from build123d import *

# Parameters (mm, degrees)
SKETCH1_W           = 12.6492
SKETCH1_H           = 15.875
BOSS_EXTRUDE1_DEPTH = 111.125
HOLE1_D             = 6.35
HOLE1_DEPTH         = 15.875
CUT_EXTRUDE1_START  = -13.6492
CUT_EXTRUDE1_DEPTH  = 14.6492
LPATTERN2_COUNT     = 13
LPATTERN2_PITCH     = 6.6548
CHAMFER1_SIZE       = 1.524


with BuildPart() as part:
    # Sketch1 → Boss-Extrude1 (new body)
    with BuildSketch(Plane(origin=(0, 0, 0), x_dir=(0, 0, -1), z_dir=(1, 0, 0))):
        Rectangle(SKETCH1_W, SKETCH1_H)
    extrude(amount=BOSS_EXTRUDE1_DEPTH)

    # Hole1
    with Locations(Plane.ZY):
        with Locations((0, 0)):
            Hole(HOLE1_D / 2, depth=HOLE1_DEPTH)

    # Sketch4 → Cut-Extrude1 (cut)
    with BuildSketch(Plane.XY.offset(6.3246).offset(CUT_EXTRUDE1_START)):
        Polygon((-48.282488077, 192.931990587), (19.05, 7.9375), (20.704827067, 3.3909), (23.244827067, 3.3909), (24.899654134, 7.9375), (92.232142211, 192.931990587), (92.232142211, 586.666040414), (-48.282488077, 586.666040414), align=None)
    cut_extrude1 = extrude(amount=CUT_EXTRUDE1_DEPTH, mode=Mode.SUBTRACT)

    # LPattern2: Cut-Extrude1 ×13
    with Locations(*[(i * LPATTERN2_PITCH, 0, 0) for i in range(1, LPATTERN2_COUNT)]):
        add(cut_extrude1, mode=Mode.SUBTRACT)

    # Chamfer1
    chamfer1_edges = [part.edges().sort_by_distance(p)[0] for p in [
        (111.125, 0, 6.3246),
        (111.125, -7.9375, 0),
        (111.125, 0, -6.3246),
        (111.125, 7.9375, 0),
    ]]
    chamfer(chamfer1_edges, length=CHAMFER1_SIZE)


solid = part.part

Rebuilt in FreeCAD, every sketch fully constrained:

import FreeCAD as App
import Part
import Sketcher
from FreeCAD import Vector
Q = App.Units.Quantity


def edges_at(feature, points):
    """Names of the edges that pass closest to the given points."""
    edges = feature.Shape.Edges
    near = lambda p: min(range(len(edges)), key=lambda i: edges[i].distToShape(Part.Vertex(*p))[0])
    return sorted({f"Edge{near(p) + 1}" for p in points})


def add_polygon(sketch, points):
    """Adds a closed chain of lines whose ends are joined by coincident constraints."""
    first, n = sketch.GeometryCount, len(points)
    for a, b in zip(points, points[1:] + points[:1]):
        sketch.addGeometry(Part.LineSegment(App.Vector(*a, 0), App.Vector(*b, 0)), False)
    for i in range(n):
        sketch.addConstraint(Sketcher.Constraint("Coincident", first + i, 2, first + (i + 1) % n, 1))

doc = App.newDocument("Part")
body = doc.addObject("PartDesign::Body", "Body")

sketch1 = body.newObject("Sketcher::SketchObject", "Sketch")
sketch1.AttachmentSupport = (doc.getObject("YZ_Plane"), [""])
sketch1.MapMode = "FlatFace"
add_polygon(sketch1, [(7.9375, 6.3246), (-7.9375, 6.3246), (-7.9375, -6.3246), (7.9375, -6.3246)])
sketch1.addConstraint(Sketcher.Constraint("Horizontal", 0))
sketch1.addConstraint(Sketcher.Constraint("Vertical", 1))
sketch1.addConstraint(Sketcher.Constraint("Horizontal", 2))
sketch1.addConstraint(Sketcher.Constraint("Vertical", 3))
sketch1.addConstraint(Sketcher.Constraint("Symmetric", 0, 2, 2, 2, -1, 1))
sketch1.addConstraint(Sketcher.Constraint("DistanceX", 0, 2, 0, 1, Q("0.625 in")))
sketch1.addConstraint(Sketcher.Constraint("DistanceY", 1, 2, 1, 1, Q("0.498 in")))
pad1 = body.newObject("PartDesign::Pad", "Pad")
pad1.Profile = sketch1
pad1.Length = Q("4.375 in")

sketch2 = body.newObject("Sketcher::SketchObject", "Sketch001")
sketch2.AttachmentSupport = (doc.getObject("YZ_Plane"), [""])
sketch2.MapMode = "FlatFace"
sketch2.addGeometry(Part.Circle(Vector(0, 0, 0), Vector(0, 0, 1), 3.175), False)
sketch2.addConstraint(Sketcher.Constraint("Coincident", 0, 3, -1, 1))
sketch2.addConstraint(Sketcher.Constraint("Diameter", 0, Q("0.25 in")))
doc.recompute()
hole = body.newObject("PartDesign::Hole", "Hole")
hole.Profile = sketch2
hole.ThreadType = "None"
hole.Diameter = Q("0.25 in")
hole.DepthType = "Dimension"
hole.Depth = Q("0.625 in")
hole.DrillPoint = "Flat"
hole.Reversed = True

sketch3 = body.newObject("Sketcher::SketchObject", "Sketch002")
sketch3.AttachmentSupport = (doc.getObject("XY_Plane"), [""])
sketch3.MapMode = "FlatFace"
sketch3.AttachmentOffset = App.Placement(Vector(0, 0, -7.3246), App.Rotation())
add_polygon(sketch3, [(-48.282488, 192.931991), (19.05, 7.9375), (20.704827, 3.3909), (23.244827, 3.3909), (24.899654, 7.9375), (92.232142, 192.931991), (92.232142, 586.66604), (-48.282488, 586.66604)])
sketch3.addConstraint(Sketcher.Constraint("Horizontal", 2))
sketch3.addConstraint(Sketcher.Constraint("Vertical", 5))
sketch3.addConstraint(Sketcher.Constraint("Horizontal", 6))
sketch3.addConstraint(Sketcher.Constraint("Vertical", 7))
sketch3.addConstraint(Sketcher.Constraint("Parallel", 0, 1))
sketch3.addConstraint(Sketcher.Constraint("Parallel", 3, 4))
sketch3.addConstraint(Sketcher.Constraint("Horizontal", 0, 2, 3, 2))
sketch3.addConstraint(Sketcher.Constraint("Horizontal", 4, 2, 7, 2))
sketch3.addConstraint(Sketcher.Constraint("Equal", 1, 3))
sketch3.addConstraint(Sketcher.Constraint("DistanceX", 2, 1, 2, 2, Q("0.1 in")))
sketch3.addConstraint(Sketcher.Constraint("Angle", 0, Q("-70 deg")))
sketch3.addConstraint(Sketcher.Constraint("DistanceX", -1, 1, 0, 2, Q("0.75 in")))
sketch3.addConstraint(Sketcher.Constraint("DistanceY", -1, 1, 0, 2, Q("0.3125 in")))
sketch3.addConstraint(Sketcher.Constraint("DistanceY", 1, 2, 0, 2, Q("0.179 in")))
sketch3.addConstraint(Sketcher.Constraint("DistanceX", 6, 2, 6, 1, 140.51463))
sketch3.addConstraint(Sketcher.Constraint("DistanceY", 5, 1, 5, 2, 393.73405))
pocket1 = body.newObject("PartDesign::Pocket", "Pocket")
pocket1.Profile = sketch3
pocket1.Length = 14.6492
pocket1.Reversed = True
doc.recompute()

linearpattern = body.newObject("PartDesign::LinearPattern", "LinearPattern")
linearpattern.Originals = [pocket1]
linearpattern.Direction = (doc.getObject("X_Axis"), [""])
linearpattern.Mode = "offset"
linearpattern.Offset = Q("0.262 in")
linearpattern.Occurrences = 13
body.Tip = linearpattern
doc.recompute()

chamfer = body.newObject("PartDesign::Chamfer", "Chamfer")
chamfer.Base = (linearpattern, edges_at(linearpattern, [
    (111.125, 0, 6.325),
    (111.125, -7.938, 0),
    (111.125, 0, -6.325),
    (111.125, 7.938, 0),
]))
chamfer.Size = Q("0.06 in")

doc.recompute()
